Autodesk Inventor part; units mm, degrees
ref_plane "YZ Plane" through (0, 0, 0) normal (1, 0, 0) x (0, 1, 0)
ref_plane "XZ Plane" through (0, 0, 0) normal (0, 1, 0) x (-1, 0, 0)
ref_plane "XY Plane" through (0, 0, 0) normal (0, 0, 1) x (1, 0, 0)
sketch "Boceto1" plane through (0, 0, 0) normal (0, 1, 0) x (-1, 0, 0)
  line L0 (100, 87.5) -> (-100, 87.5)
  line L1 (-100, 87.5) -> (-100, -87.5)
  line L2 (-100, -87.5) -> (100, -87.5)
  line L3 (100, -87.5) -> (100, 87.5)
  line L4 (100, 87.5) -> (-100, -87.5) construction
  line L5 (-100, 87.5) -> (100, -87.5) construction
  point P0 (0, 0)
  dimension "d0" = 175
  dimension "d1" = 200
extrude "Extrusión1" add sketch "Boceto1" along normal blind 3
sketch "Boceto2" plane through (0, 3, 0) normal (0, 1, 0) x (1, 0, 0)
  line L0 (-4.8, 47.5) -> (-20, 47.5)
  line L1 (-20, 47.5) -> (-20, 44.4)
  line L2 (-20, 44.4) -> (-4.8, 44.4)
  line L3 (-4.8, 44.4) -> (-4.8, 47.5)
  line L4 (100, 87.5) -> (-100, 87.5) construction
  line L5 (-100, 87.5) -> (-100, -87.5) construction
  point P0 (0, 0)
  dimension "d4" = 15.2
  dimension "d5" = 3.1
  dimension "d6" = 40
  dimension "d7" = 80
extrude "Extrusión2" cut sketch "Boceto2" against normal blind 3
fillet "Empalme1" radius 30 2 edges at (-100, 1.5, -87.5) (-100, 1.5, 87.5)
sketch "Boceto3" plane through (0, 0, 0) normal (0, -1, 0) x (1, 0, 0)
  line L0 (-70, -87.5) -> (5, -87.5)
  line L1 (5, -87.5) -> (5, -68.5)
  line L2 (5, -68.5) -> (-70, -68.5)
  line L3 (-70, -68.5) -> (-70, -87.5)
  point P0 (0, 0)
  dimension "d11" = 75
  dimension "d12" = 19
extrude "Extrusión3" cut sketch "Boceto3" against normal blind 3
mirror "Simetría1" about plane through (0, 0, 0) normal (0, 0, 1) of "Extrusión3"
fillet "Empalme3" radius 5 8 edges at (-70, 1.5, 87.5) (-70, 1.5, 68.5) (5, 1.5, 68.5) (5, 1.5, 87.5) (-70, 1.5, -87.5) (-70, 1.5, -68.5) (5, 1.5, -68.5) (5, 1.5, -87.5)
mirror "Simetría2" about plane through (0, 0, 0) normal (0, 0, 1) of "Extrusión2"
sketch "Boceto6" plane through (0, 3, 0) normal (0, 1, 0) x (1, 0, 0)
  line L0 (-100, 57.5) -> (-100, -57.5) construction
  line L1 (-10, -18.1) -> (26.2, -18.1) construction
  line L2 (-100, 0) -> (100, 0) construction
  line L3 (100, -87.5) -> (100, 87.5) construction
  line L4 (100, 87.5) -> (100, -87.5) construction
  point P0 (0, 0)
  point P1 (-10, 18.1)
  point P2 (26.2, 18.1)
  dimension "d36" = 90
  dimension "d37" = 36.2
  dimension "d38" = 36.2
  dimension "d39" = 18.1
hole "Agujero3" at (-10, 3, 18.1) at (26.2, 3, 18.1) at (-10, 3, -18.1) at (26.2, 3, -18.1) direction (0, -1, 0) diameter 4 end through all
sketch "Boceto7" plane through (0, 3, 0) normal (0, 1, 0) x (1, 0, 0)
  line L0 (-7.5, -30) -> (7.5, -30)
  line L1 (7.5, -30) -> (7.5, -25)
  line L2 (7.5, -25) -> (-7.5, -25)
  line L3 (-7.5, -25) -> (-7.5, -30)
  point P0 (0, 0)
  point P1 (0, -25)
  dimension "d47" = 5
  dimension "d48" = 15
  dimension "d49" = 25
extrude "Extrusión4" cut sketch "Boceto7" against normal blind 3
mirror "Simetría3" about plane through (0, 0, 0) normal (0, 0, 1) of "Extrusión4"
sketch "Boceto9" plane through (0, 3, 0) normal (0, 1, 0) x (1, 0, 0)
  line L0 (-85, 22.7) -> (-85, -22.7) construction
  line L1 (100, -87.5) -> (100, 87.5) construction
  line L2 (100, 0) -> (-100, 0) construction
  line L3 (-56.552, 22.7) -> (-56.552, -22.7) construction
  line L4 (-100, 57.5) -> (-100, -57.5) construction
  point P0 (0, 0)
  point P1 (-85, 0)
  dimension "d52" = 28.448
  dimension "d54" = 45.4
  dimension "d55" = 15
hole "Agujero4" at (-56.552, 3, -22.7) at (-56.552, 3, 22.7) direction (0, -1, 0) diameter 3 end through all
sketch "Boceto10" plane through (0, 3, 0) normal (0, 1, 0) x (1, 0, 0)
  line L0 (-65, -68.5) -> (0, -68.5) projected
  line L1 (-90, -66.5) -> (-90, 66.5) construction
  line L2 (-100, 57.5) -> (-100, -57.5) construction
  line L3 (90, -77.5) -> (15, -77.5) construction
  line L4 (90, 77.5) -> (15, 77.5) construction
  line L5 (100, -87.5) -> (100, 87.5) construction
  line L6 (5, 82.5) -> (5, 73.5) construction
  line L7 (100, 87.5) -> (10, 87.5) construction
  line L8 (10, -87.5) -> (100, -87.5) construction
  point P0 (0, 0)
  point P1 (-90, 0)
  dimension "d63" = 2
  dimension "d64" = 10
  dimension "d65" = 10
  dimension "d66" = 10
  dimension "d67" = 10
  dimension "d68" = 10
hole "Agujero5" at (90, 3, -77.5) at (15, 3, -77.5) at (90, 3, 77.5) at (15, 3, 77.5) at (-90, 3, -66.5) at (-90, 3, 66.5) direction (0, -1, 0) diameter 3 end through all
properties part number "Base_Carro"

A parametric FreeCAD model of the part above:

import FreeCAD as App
import Part
import Sketcher

V = App.Vector
Q = App.Units.Quantity


def edges_at(feature, points):
    """Names of the edges that pass closest to the given points."""
    edges = feature.Shape.Edges
    near = lambda p: min(range(len(edges)), key=lambda i: edges[i].distToShape(Part.Vertex(*p))[0])
    return sorted({f"Edge{near(p) + 1}" for p in points})

doc = App.newDocument("Part")
body = doc.addObject("PartDesign::Body", "Body")

# Sketch on XZ plane
sketch1 = body.newObject("Sketcher::SketchObject", "Sketch")
sketch1.AttachmentSupport = (doc.getObject("XZ_Plane"), [""])
sketch1.MapMode = "FlatFace"
sketch1.addGeometry([
    Part.LineSegment(V(-100, -87.5, 0), V(-100, 87.5, 0)),
    Part.LineSegment(V(-100, 87.5, 0), V(100, 87.5, 0)),
    Part.LineSegment(V(100, 87.5, 0), V(100, -87.5, 0)),
    Part.LineSegment(V(100, -87.5, 0), V(-100, -87.5, 0)),
], False)
sketch1.addConstraint([
    Sketcher.Constraint("Coincident", 0, 2, 1, 1),
    Sketcher.Constraint("Coincident", 1, 2, 2, 1),
    Sketcher.Constraint("Coincident", 2, 2, 3, 1),
    Sketcher.Constraint("Coincident", 3, 2, 0, 1),
    Sketcher.Constraint("Vertical", 0),
    Sketcher.Constraint("Horizontal", 1),
    Sketcher.Constraint("Vertical", 2),
    Sketcher.Constraint("Horizontal", 3),
    Sketcher.Constraint("Symmetric", 0, 2, 2, 2, -1, 1),
    Sketcher.Constraint("DistanceX", 1, 1, 1, 2, Q("200 mm")),
    Sketcher.Constraint("DistanceY", 0, 1, 0, 2, Q("175 mm")),
])
pad1 = body.newObject("PartDesign::Pad", "Pad")
pad1.Profile = sketch1
pad1.Length = 3
pad1.Reversed = True

# Sketch on XZ plane
sketch2 = body.newObject("Sketcher::SketchObject", "Sketch001")
sketch2.AttachmentSupport = (doc.getObject("XZ_Plane"), [""])
sketch2.MapMode = "FlatFace"
sketch2.AttachmentOffset = App.Placement(V(0, 0, -3), App.Rotation())
sketch2.addGeometry([
    Part.LineSegment(V(-4.8, -44.4, 0), V(-4.8, -47.5, 0)),
    Part.LineSegment(V(-4.8, -47.5, 0), V(-20, -47.5, 0)),
    Part.LineSegment(V(-20, -47.5, 0), V(-20, -44.4, 0)),
    Part.LineSegment(V(-20, -44.4, 0), V(-4.8, -44.4, 0)),
], False)
sketch2.addConstraint([
    Sketcher.Constraint("Coincident", 0, 2, 1, 1),
    Sketcher.Constraint("Coincident", 1, 2, 2, 1),
    Sketcher.Constraint("Coincident", 2, 2, 3, 1),
    Sketcher.Constraint("Coincident", 3, 2, 0, 1),
    Sketcher.Constraint("Vertical", 0),
    Sketcher.Constraint("Horizontal", 1),
    Sketcher.Constraint("Vertical", 2),
    Sketcher.Constraint("Horizontal", 3),
    Sketcher.Constraint("DistanceX", 1, 2, 1, 1, Q("15.2 mm")),
    Sketcher.Constraint("DistanceY", 0, 2, 0, 1, Q("3.1 mm")),
    Sketcher.Constraint("DistanceX", 1, 2, -1, 1, Q("20 mm")),
    Sketcher.Constraint("DistanceY", 0, 2, -1, 1, Q("47.5 mm")),
])
pocket1 = body.newObject("PartDesign::Pocket", "Pocket")
pocket1.Profile = sketch2
pocket1.Length = 3
pocket1.Reversed = True
doc.recompute()

fillet = body.newObject("PartDesign::Fillet", "Fillet")
fillet.Base = (pocket1, edges_at(pocket1, [(-100, 1.5, -87.5), (-100, 1.5, 87.5)]))
fillet.Radius = 30

# Sketch on XZ plane
sketch3 = body.newObject("Sketcher::SketchObject", "Sketch002")
sketch3.AttachmentSupport = (doc.getObject("XZ_Plane"), [""])
sketch3.MapMode = "FlatFace"
sketch3.addGeometry([
    Part.LineSegment(V(-70, -68.5, 0), V(-70, -87.5, 0)),
    Part.LineSegment(V(-70, -87.5, 0), V(5, -87.5, 0)),
    Part.LineSegment(V(5, -87.5, 0), V(5, -68.5, 0)),
    Part.LineSegment(V(5, -68.5, 0), V(-70, -68.5, 0)),
], False)
sketch3.addConstraint([
    Sketcher.Constraint("Coincident", 0, 2, 1, 1),
    Sketcher.Constraint("Coincident", 1, 2, 2, 1),
    Sketcher.Constraint("Coincident", 2, 2, 3, 1),
    Sketcher.Constraint("Coincident", 3, 2, 0, 1),
    Sketcher.Constraint("Vertical", 0),
    Sketcher.Constraint("Horizontal", 1),
    Sketcher.Constraint("Vertical", 2),
    Sketcher.Constraint("Horizontal", 3),
    Sketcher.Constraint("DistanceX", 1, 1, 1, 2, Q("75 mm")),
    Sketcher.Constraint("DistanceY", 0, 2, 0, 1, Q("19 mm")),
    Sketcher.Constraint("DistanceX", 0, 2, -1, 1, Q("70 mm")),
    Sketcher.Constraint("DistanceY", 0, 2, -1, 1, Q("87.5 mm")),
])
pocket2 = body.newObject("PartDesign::Pocket", "Pocket001")
pocket2.Profile = sketch3
pocket2.Length = 3
doc.recompute()

mirrored = body.newObject("PartDesign::Mirrored", "Mirrored")
mirrored.Originals = [pocket2]
mirrored.MirrorPlane = (doc.getObject("XY_Plane"), [""])
body.Tip = mirrored
doc.recompute()

fillet2 = body.newObject("PartDesign::Fillet", "Fillet001")
fillet2.Base = (mirrored, edges_at(mirrored, [
    (-70, 1.5, 87.5),
    (-70, 1.5, 68.5),
    (5, 1.5, 68.5),
    (5, 1.5, 87.5),
    (-70, 1.5, -87.5),
    (-70, 1.5, -68.5),
    (5, 1.5, -68.5),
    (5, 1.5, -87.5),
]))
fillet2.Radius = 5
doc.recompute()

mirrored2 = body.newObject("PartDesign::Mirrored", "Mirrored001")
mirrored2.Originals = [pocket1]
mirrored2.MirrorPlane = (doc.getObject("XY_Plane"), [""])
body.Tip = mirrored2

# Sketch on XZ plane
sketch4 = body.newObject("Sketcher::SketchObject", "Sketch003")
sketch4.AttachmentSupport = (doc.getObject("XZ_Plane"), [""])
sketch4.MapMode = "FlatFace"
sketch4.AttachmentOffset = App.Placement(V(0, 0, -3), App.Rotation())
sketch4.addGeometry([
    Part.Circle(V(-10, 18.1, 0), V(0, 0, 1), 2),
    Part.Circle(V(26.2, 18.1, 0), V(0, 0, 1), 2),
    Part.Circle(V(-10, -18.1, 0), V(0, 0, 1), 2),
    Part.Circle(V(26.2, -18.1, 0), V(0, 0, 1), 2),
], False)
sketch4.addConstraint([
    Sketcher.Constraint("Equal", 0, 1),
    Sketcher.Constraint("Equal", 1, 2),
    Sketcher.Constraint("Equal", 2, 3),
    Sketcher.Constraint("Symmetric", 0, 3, 2, 3, -1),
    Sketcher.Constraint("Symmetric", 1, 3, 3, 3, -1),
    Sketcher.Constraint("Horizontal", 0, 3, 1, 3),
    Sketcher.Constraint("Diameter", 0, Q("4 mm")),
    Sketcher.Constraint("DistanceX", 0, 3, -1, 1, Q("10 mm")),
    Sketcher.Constraint("DistanceY", -1, 1, 0, 3, Q("18.1 mm")),
    Sketcher.Constraint("DistanceX", -1, 1, 1, 3, Q("26.2 mm")),
])
doc.recompute()
hole = body.newObject("PartDesign::Hole", "Hole")
hole.Profile = sketch4
hole.ThreadType = "None"
hole.Diameter = 4
hole.DepthType = "ThroughAll"
hole.Reversed = True

# Sketch on XZ plane
sketch5 = body.newObject("Sketcher::SketchObject", "Sketch004")
sketch5.AttachmentSupport = (doc.getObject("XZ_Plane"), [""])
sketch5.MapMode = "FlatFace"
sketch5.AttachmentOffset = App.Placement(V(0, 0, -3), App.Rotation())
sketch5.addGeometry([
    Part.LineSegment(V(-7.5, 25, 0), V(-7.5, 30, 0)),
    Part.LineSegment(V(-7.5, 30, 0), V(7.5, 30, 0)),
    Part.LineSegment(V(7.5, 30, 0), V(7.5, 25, 0)),
    Part.LineSegment(V(7.5, 25, 0), V(-7.5, 25, 0)),
], False)
sketch5.addConstraint([
    Sketcher.Constraint("Coincident", 0, 2, 1, 1),
    Sketcher.Constraint("Coincident", 1, 2, 2, 1),
    Sketcher.Constraint("Coincident", 2, 2, 3, 1),
    Sketcher.Constraint("Coincident", 3, 2, 0, 1),
    Sketcher.Constraint("Vertical", 0),
    Sketcher.Constraint("Horizontal", 1),
    Sketcher.Constraint("Vertical", 2),
    Sketcher.Constraint("Horizontal", 3),
    Sketcher.Constraint("DistanceX", 1, 1, 1, 2, Q("15 mm")),
    Sketcher.Constraint("DistanceY", 0, 1, 0, 2, Q("5 mm")),
    Sketcher.Constraint("DistanceY", -1, 1, 2, 2, Q("25 mm")),
    Sketcher.Constraint("DistanceX", 0, 2, -1, 1, Q("7.5 mm")),
])
pocket3 = body.newObject("PartDesign::Pocket", "Pocket002")
pocket3.Profile = sketch5
pocket3.Length = 3
pocket3.Reversed = True
doc.recompute()

mirrored3 = body.newObject("PartDesign::Mirrored", "Mirrored002")
mirrored3.Originals = [pocket3]
mirrored3.MirrorPlane = (doc.getObject("XY_Plane"), [""])
body.Tip = mirrored3

# Sketch on XZ plane
sketch6 = body.newObject("Sketcher::SketchObject", "Sketch005")
sketch6.AttachmentSupport = (doc.getObject("XZ_Plane"), [""])
sketch6.MapMode = "FlatFace"
sketch6.AttachmentOffset = App.Placement(V(0, 0, -3), App.Rotation())
sketch6.addGeometry([
    Part.Circle(V(-56.552, -22.7, 0), V(0, 0, 1), 1.5),
    Part.Circle(V(-56.552, 22.7, 0), V(0, 0, 1), 1.5),
], False)
sketch6.addConstraint([
    Sketcher.Constraint("Equal", 0, 1),
    Sketcher.Constraint("Symmetric", 0, 3, 1, 3, -1),
    Sketcher.Constraint("Diameter", 0, Q("3 mm")),
    Sketcher.Constraint("DistanceY", 0, 3, -1, 1, Q("22.7 mm")),
    Sketcher.Constraint("DistanceX", 0, 3, -1, 1, Q("56.552 mm")),
])
doc.recompute()
hole2 = body.newObject("PartDesign::Hole", "Hole001")
hole2.Profile = sketch6
hole2.ThreadType = "None"
hole2.Diameter = 3
hole2.DepthType = "ThroughAll"
hole2.Reversed = True

# Sketch on XZ plane
sketch7 = body.newObject("Sketcher::SketchObject", "Sketch006")
sketch7.AttachmentSupport = (doc.getObject("XZ_Plane"), [""])
sketch7.MapMode = "FlatFace"
sketch7.AttachmentOffset = App.Placement(V(0, 0, -3), App.Rotation())
sketch7.addGeometry([
    Part.Circle(V(90, -77.5, 0), V(0, 0, 1), 1.5),  # 0
    Part.Circle(V(15, -77.5, 0), V(0, 0, 1), 1.5),  # 1
    Part.Circle(V(90, 77.5, 0), V(0, 0, 1), 1.5),  # 2
    Part.Circle(V(15, 77.5, 0), V(0, 0, 1), 1.5),  # 3
    Part.Circle(V(-90, -66.5, 0), V(0, 0, 1), 1.5),  # 4
    Part.Circle(V(-90, 66.5, 0), V(0, 0, 1), 1.5),  # 5
], False)
sketch7.addConstraint([
    Sketcher.Constraint("Equal", 0, 1),
    Sketcher.Constraint("Equal", 1, 2),
    Sketcher.Constraint("Equal", 2, 3),
    Sketcher.Constraint("Equal", 3, 4),
    Sketcher.Constraint("Equal", 4, 5),
    Sketcher.Constraint("Symmetric", 0, 3, 2, 3, -1),
    Sketcher.Constraint("Symmetric", 1, 3, 3, 3, -1),
    Sketcher.Constraint("Symmetric", 4, 3, 5, 3, -1),
    Sketcher.Constraint("Horizontal", 0, 3, 1, 3),
    Sketcher.Constraint("Diameter", 0, Q("3 mm")),
    Sketcher.Constraint("DistanceX", -1, 1, 0, 3, Q("90 mm")),
    Sketcher.Constraint("DistanceX", -1, 1, 1, 3, Q("15 mm")),
    Sketcher.Constraint("DistanceX", 4, 3, -1, 1, Q("90 mm")),
    Sketcher.Constraint("DistanceY", 0, 3, 2, 3, Q("155 mm")),
    Sketcher.Constraint("DistanceY", 1, 3, 4, 3, Q("11 mm")),
])
doc.recompute()
hole3 = body.newObject("PartDesign::Hole", "Hole002")
hole3.Profile = sketch7
hole3.ThreadType = "None"
hole3.Diameter = 3
hole3.DepthType = "ThroughAll"
hole3.Reversed = True

doc.recompute()
